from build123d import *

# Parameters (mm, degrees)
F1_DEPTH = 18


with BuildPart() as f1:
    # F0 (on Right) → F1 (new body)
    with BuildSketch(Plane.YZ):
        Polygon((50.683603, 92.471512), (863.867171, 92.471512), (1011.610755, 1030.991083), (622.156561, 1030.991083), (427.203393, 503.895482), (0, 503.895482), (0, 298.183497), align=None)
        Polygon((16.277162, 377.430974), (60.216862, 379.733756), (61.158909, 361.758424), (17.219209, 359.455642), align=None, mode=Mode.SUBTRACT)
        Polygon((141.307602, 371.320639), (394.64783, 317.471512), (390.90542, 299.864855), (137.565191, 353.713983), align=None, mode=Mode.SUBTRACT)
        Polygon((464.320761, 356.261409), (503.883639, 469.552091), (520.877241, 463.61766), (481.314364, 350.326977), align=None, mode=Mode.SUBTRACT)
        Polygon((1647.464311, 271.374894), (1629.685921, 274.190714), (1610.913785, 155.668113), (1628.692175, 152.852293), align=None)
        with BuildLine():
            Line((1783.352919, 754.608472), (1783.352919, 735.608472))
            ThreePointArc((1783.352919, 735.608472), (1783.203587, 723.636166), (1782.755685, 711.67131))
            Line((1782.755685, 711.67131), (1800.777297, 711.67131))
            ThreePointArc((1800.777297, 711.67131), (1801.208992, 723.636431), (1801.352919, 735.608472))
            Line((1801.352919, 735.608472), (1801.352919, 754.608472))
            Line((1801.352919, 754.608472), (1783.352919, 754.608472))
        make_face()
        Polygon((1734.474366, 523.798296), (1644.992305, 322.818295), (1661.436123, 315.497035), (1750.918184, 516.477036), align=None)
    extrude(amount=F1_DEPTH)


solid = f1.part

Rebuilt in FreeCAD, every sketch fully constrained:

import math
import FreeCAD as App
import Part
import Sketcher


def add_polygon(sketch, points):
    """Adds a closed chain of lines whose ends are joined by coincident constraints."""
    first, n = sketch.GeometryCount, len(points)
    for a, b in zip(points, points[1:] + points[:1]):
        sketch.addGeometry(Part.LineSegment(App.Vector(*a, 0), App.Vector(*b, 0)), False)
    for i in range(n):
        sketch.addConstraint(Sketcher.Constraint("Coincident", first + i, 2, first + (i + 1) % n, 1))

doc = App.newDocument("Part")
body = doc.addObject("PartDesign::Body", "Body")
body.AllowCompound = True

# Sketch on YZ plane
sketch1 = body.newObject("Sketcher::SketchObject", "Sketch")
sketch1.AttachmentSupport = (doc.getObject("YZ_Plane"), [""])
sketch1.MapMode = "FlatFace"
add_polygon(sketch1, [(50.683603, 92.471512), (863.867171, 92.471512), (1011.610755, 1030.991083), (622.156561, 1030.991083), (427.203393, 503.895482), (0, 503.895482), (0, 298.183497)])  # lines 0-6
add_polygon(sketch1, [(137.565191, 353.713983), (141.307602, 371.320639), (394.64783, 317.471512), (390.90542, 299.864855)])  # lines 7-10
add_polygon(sketch1, [(17.219209, 359.455642), (16.277162, 377.430974), (60.216862, 379.733756), (61.158909, 361.758424)])  # lines 11-14
add_polygon(sketch1, [(481.314364, 350.326977), (464.320761, 356.261409), (503.883639, 469.552091), (520.877241, 463.61766)])  # lines 15-18
add_polygon(sketch1, [(1647.464311, 271.374894), (1629.685921, 274.190714), (1610.913785, 155.668113), (1628.692175, 152.852293)])  # lines 19-22
sketch1.addGeometry(Part.LineSegment(App.Vector(1783.352919, 754.608472, 0), App.Vector(1783.352919, 735.608472, 0)), False)  # 23
sketch1.addGeometry(Part.ArcOfCircle(Part.Circle(App.Vector(1303.352265, 735.608493, 0), App.Vector(0, 0, 1), 480.000654), math.radians(-2.858472), math.radians(-0.000003)), False)  # 24
sketch1.addGeometry(Part.LineSegment(App.Vector(1782.755685, 711.67131, 0), App.Vector(1800.777297, 711.67131, 0)), False)  # 25
sketch1.addGeometry(Part.ArcOfCircle(Part.Circle(App.Vector(1303.350877, 735.60853, 0), App.Vector(0, 0, 1), 498.002042), math.radians(-2.75507), math.radians(-0.000007)), False)  # 26
sketch1.addGeometry(Part.LineSegment(App.Vector(1801.352919, 735.608472, 0), App.Vector(1801.352919, 754.608472, 0)), False)  # 27
sketch1.addGeometry(Part.LineSegment(App.Vector(1801.352919, 754.608472, 0), App.Vector(1783.352919, 754.608472, 0)), False)  # 28
add_polygon(sketch1, [(1734.474366, 523.798296), (1644.992305, 322.818295), (1661.436123, 315.497035), (1750.918184, 516.477036)])  # lines 29-32
sketch1.addConstraint([
    Sketcher.Constraint("Coincident", 23, 2, 24, 2),
    Sketcher.Constraint("Coincident", 24, 1, 25, 1),
    Sketcher.Constraint("Coincident", 25, 2, 26, 1),
    Sketcher.Constraint("Coincident", 26, 2, 27, 1),
    Sketcher.Constraint("Coincident", 27, 2, 28, 1),
    Sketcher.Constraint("Coincident", 28, 2, 23, 1),
    Sketcher.Constraint("Horizontal", 0),
    Sketcher.Constraint("Horizontal", 2),
    Sketcher.Constraint("Horizontal", 4),
    Sketcher.Constraint("Vertical", 5),
    Sketcher.Constraint("Vertical", 23),
    Sketcher.Constraint("Horizontal", 25),
    Sketcher.Constraint("Vertical", 27),
    Sketcher.Constraint("Horizontal", 28),
    Sketcher.Constraint("PointOnObject", 4, 2, -2),
    Sketcher.Constraint("DistanceX", 28, 2, 28, 1, 18.0),
    Sketcher.Constraint("DistanceY", 23, 2, 23, 1, 19.0),
    Sketcher.Constraint("DistanceY", 27, 1, 27, 2, 19.0),
    Sketcher.Constraint("Distance", 7, 17.999999),
    Sketcher.Constraint("Distance", 8, 258.999999),
    Sketcher.Constraint("Distance", 9, 18.0),
    Sketcher.Constraint("Distance", 10, 259.0),
    Sketcher.Constraint("Distance", 11, 18.0),
    Sketcher.Constraint("Distance", 12, 44.0),
    Sketcher.Constraint("Distance", 13, 18.0),
    Sketcher.Constraint("Distance", 14, 44.0),
    Sketcher.Constraint("Distance", 15, 18.000001),
    Sketcher.Constraint("Distance", 16, 120.0),
    Sketcher.Constraint("Distance", 17, 17.999999),
    Sketcher.Constraint("Distance", 18, 120.0),
    Sketcher.Constraint("Distance", 19, 18.0),
    Sketcher.Constraint("Distance", 20, 120.0),
    Sketcher.Constraint("Distance", 21, 18.0),
    Sketcher.Constraint("Distance", 22, 120.0),
    Sketcher.Constraint("Distance", 29, 220.0),
    Sketcher.Constraint("Distance", 30, 18.0),
    Sketcher.Constraint("Distance", 31, 220.0),
    Sketcher.Constraint("Distance", 32, 18.0),
    Sketcher.Constraint("DistanceY", 6, 2, 8, 2, 225.0),
    Sketcher.Constraint("Radius", 26, 498.002042),
    Sketcher.Constraint("DistanceY", 30, 2, 31, 2, 200.980001),
    Sketcher.Constraint("Radius", 24, 480.000654),
    Sketcher.Constraint("DistanceX", 6, 2, 7, 2, 90.623999),
    Sketcher.Constraint("DistanceY", 21, 2, 29, 2, 169.966002),
    Sketcher.Constraint("DistanceX", 0, 1, 0, 2, 813.183568),
    Sketcher.Constraint("DistanceX", -1, 1, 7, 2, 141.307602),
    Sketcher.Constraint("DistanceY", 3, 2, 2, 2, 527.095601),
    Sketcher.Constraint("DistanceY", 10, 2, 4, 2, 150.181499),
    Sketcher.Constraint("DistanceX", 11, 2, 12, 2, 43.9397),
    Sketcher.Constraint("DistanceY", 0, 2, 19, 2, 181.719202),
    Sketcher.Constraint("DistanceY", 20, 2, 19, 2, 118.522601),
    Sketcher.Constraint("DistanceY", 21, 2, 24, 3, 582.7562),
    Sketcher.Constraint("DistanceX", 19, 2, 30, 2, 31.750202),
    Sketcher.Constraint("DistanceX", 31, 2, 24, 1, 31.837501),
    Sketcher.Constraint("Distance", 6, 211.86375),
    Sketcher.Constraint("DistanceX", 2, 2, 2, 1, 389.454194),
    Sketcher.Constraint("DistanceX", 4, 2, 4, 1, 427.203393),
    Sketcher.Constraint("DistanceX", 25, 1, 25, 2, 18.021612),
    Sketcher.Constraint("DistanceY", 5, 2, 5, 1, 205.711985),
    Sketcher.Constraint("DistanceY", -1, 1, 26, 3, 735.60853),
    Sketcher.Constraint("DistanceX", -1, 1, 2, 2, 622.156561),
    Sketcher.Constraint("DistanceY", -1, 1, 3, 2, 503.895482),
    Sketcher.Constraint("DistanceY", -1, 1, 7, 2, 371.320639),
    Sketcher.Constraint("DistanceX", -1, 1, 13, 2, 61.158909),
    Sketcher.Constraint("DistanceY", -1, 1, 14, 2, 359.455642),
    Sketcher.Constraint("DistanceX", -1, 1, 15, 2, 464.320761),
    Sketcher.Constraint("DistanceY", -1, 1, 15, 2, 356.261409),
    Sketcher.Constraint("DistanceX", -1, 1, 16, 2, 503.883639),
    Sketcher.Constraint("DistanceX", -1, 1, 17, 2, 520.877241),
    Sketcher.Constraint("DistanceX", -1, 1, 19, 2, 1629.685921),
    Sketcher.Constraint("DistanceX", -1, 1, 22, 2, 1647.464311),
    Sketcher.Constraint("DistanceY", -1, 1, 23, 2, 735.608472),
    Sketcher.Constraint("DistanceX", 11, 2, 10, 2, 121.288029),
    Sketcher.Constraint("DistanceX", 20, 2, 29, 2, 34.07852),
])
pad1 = body.newObject("PartDesign::Pad", "Pad")
pad1.Profile = sketch1
pad1.Length = 18

doc.recompute()
